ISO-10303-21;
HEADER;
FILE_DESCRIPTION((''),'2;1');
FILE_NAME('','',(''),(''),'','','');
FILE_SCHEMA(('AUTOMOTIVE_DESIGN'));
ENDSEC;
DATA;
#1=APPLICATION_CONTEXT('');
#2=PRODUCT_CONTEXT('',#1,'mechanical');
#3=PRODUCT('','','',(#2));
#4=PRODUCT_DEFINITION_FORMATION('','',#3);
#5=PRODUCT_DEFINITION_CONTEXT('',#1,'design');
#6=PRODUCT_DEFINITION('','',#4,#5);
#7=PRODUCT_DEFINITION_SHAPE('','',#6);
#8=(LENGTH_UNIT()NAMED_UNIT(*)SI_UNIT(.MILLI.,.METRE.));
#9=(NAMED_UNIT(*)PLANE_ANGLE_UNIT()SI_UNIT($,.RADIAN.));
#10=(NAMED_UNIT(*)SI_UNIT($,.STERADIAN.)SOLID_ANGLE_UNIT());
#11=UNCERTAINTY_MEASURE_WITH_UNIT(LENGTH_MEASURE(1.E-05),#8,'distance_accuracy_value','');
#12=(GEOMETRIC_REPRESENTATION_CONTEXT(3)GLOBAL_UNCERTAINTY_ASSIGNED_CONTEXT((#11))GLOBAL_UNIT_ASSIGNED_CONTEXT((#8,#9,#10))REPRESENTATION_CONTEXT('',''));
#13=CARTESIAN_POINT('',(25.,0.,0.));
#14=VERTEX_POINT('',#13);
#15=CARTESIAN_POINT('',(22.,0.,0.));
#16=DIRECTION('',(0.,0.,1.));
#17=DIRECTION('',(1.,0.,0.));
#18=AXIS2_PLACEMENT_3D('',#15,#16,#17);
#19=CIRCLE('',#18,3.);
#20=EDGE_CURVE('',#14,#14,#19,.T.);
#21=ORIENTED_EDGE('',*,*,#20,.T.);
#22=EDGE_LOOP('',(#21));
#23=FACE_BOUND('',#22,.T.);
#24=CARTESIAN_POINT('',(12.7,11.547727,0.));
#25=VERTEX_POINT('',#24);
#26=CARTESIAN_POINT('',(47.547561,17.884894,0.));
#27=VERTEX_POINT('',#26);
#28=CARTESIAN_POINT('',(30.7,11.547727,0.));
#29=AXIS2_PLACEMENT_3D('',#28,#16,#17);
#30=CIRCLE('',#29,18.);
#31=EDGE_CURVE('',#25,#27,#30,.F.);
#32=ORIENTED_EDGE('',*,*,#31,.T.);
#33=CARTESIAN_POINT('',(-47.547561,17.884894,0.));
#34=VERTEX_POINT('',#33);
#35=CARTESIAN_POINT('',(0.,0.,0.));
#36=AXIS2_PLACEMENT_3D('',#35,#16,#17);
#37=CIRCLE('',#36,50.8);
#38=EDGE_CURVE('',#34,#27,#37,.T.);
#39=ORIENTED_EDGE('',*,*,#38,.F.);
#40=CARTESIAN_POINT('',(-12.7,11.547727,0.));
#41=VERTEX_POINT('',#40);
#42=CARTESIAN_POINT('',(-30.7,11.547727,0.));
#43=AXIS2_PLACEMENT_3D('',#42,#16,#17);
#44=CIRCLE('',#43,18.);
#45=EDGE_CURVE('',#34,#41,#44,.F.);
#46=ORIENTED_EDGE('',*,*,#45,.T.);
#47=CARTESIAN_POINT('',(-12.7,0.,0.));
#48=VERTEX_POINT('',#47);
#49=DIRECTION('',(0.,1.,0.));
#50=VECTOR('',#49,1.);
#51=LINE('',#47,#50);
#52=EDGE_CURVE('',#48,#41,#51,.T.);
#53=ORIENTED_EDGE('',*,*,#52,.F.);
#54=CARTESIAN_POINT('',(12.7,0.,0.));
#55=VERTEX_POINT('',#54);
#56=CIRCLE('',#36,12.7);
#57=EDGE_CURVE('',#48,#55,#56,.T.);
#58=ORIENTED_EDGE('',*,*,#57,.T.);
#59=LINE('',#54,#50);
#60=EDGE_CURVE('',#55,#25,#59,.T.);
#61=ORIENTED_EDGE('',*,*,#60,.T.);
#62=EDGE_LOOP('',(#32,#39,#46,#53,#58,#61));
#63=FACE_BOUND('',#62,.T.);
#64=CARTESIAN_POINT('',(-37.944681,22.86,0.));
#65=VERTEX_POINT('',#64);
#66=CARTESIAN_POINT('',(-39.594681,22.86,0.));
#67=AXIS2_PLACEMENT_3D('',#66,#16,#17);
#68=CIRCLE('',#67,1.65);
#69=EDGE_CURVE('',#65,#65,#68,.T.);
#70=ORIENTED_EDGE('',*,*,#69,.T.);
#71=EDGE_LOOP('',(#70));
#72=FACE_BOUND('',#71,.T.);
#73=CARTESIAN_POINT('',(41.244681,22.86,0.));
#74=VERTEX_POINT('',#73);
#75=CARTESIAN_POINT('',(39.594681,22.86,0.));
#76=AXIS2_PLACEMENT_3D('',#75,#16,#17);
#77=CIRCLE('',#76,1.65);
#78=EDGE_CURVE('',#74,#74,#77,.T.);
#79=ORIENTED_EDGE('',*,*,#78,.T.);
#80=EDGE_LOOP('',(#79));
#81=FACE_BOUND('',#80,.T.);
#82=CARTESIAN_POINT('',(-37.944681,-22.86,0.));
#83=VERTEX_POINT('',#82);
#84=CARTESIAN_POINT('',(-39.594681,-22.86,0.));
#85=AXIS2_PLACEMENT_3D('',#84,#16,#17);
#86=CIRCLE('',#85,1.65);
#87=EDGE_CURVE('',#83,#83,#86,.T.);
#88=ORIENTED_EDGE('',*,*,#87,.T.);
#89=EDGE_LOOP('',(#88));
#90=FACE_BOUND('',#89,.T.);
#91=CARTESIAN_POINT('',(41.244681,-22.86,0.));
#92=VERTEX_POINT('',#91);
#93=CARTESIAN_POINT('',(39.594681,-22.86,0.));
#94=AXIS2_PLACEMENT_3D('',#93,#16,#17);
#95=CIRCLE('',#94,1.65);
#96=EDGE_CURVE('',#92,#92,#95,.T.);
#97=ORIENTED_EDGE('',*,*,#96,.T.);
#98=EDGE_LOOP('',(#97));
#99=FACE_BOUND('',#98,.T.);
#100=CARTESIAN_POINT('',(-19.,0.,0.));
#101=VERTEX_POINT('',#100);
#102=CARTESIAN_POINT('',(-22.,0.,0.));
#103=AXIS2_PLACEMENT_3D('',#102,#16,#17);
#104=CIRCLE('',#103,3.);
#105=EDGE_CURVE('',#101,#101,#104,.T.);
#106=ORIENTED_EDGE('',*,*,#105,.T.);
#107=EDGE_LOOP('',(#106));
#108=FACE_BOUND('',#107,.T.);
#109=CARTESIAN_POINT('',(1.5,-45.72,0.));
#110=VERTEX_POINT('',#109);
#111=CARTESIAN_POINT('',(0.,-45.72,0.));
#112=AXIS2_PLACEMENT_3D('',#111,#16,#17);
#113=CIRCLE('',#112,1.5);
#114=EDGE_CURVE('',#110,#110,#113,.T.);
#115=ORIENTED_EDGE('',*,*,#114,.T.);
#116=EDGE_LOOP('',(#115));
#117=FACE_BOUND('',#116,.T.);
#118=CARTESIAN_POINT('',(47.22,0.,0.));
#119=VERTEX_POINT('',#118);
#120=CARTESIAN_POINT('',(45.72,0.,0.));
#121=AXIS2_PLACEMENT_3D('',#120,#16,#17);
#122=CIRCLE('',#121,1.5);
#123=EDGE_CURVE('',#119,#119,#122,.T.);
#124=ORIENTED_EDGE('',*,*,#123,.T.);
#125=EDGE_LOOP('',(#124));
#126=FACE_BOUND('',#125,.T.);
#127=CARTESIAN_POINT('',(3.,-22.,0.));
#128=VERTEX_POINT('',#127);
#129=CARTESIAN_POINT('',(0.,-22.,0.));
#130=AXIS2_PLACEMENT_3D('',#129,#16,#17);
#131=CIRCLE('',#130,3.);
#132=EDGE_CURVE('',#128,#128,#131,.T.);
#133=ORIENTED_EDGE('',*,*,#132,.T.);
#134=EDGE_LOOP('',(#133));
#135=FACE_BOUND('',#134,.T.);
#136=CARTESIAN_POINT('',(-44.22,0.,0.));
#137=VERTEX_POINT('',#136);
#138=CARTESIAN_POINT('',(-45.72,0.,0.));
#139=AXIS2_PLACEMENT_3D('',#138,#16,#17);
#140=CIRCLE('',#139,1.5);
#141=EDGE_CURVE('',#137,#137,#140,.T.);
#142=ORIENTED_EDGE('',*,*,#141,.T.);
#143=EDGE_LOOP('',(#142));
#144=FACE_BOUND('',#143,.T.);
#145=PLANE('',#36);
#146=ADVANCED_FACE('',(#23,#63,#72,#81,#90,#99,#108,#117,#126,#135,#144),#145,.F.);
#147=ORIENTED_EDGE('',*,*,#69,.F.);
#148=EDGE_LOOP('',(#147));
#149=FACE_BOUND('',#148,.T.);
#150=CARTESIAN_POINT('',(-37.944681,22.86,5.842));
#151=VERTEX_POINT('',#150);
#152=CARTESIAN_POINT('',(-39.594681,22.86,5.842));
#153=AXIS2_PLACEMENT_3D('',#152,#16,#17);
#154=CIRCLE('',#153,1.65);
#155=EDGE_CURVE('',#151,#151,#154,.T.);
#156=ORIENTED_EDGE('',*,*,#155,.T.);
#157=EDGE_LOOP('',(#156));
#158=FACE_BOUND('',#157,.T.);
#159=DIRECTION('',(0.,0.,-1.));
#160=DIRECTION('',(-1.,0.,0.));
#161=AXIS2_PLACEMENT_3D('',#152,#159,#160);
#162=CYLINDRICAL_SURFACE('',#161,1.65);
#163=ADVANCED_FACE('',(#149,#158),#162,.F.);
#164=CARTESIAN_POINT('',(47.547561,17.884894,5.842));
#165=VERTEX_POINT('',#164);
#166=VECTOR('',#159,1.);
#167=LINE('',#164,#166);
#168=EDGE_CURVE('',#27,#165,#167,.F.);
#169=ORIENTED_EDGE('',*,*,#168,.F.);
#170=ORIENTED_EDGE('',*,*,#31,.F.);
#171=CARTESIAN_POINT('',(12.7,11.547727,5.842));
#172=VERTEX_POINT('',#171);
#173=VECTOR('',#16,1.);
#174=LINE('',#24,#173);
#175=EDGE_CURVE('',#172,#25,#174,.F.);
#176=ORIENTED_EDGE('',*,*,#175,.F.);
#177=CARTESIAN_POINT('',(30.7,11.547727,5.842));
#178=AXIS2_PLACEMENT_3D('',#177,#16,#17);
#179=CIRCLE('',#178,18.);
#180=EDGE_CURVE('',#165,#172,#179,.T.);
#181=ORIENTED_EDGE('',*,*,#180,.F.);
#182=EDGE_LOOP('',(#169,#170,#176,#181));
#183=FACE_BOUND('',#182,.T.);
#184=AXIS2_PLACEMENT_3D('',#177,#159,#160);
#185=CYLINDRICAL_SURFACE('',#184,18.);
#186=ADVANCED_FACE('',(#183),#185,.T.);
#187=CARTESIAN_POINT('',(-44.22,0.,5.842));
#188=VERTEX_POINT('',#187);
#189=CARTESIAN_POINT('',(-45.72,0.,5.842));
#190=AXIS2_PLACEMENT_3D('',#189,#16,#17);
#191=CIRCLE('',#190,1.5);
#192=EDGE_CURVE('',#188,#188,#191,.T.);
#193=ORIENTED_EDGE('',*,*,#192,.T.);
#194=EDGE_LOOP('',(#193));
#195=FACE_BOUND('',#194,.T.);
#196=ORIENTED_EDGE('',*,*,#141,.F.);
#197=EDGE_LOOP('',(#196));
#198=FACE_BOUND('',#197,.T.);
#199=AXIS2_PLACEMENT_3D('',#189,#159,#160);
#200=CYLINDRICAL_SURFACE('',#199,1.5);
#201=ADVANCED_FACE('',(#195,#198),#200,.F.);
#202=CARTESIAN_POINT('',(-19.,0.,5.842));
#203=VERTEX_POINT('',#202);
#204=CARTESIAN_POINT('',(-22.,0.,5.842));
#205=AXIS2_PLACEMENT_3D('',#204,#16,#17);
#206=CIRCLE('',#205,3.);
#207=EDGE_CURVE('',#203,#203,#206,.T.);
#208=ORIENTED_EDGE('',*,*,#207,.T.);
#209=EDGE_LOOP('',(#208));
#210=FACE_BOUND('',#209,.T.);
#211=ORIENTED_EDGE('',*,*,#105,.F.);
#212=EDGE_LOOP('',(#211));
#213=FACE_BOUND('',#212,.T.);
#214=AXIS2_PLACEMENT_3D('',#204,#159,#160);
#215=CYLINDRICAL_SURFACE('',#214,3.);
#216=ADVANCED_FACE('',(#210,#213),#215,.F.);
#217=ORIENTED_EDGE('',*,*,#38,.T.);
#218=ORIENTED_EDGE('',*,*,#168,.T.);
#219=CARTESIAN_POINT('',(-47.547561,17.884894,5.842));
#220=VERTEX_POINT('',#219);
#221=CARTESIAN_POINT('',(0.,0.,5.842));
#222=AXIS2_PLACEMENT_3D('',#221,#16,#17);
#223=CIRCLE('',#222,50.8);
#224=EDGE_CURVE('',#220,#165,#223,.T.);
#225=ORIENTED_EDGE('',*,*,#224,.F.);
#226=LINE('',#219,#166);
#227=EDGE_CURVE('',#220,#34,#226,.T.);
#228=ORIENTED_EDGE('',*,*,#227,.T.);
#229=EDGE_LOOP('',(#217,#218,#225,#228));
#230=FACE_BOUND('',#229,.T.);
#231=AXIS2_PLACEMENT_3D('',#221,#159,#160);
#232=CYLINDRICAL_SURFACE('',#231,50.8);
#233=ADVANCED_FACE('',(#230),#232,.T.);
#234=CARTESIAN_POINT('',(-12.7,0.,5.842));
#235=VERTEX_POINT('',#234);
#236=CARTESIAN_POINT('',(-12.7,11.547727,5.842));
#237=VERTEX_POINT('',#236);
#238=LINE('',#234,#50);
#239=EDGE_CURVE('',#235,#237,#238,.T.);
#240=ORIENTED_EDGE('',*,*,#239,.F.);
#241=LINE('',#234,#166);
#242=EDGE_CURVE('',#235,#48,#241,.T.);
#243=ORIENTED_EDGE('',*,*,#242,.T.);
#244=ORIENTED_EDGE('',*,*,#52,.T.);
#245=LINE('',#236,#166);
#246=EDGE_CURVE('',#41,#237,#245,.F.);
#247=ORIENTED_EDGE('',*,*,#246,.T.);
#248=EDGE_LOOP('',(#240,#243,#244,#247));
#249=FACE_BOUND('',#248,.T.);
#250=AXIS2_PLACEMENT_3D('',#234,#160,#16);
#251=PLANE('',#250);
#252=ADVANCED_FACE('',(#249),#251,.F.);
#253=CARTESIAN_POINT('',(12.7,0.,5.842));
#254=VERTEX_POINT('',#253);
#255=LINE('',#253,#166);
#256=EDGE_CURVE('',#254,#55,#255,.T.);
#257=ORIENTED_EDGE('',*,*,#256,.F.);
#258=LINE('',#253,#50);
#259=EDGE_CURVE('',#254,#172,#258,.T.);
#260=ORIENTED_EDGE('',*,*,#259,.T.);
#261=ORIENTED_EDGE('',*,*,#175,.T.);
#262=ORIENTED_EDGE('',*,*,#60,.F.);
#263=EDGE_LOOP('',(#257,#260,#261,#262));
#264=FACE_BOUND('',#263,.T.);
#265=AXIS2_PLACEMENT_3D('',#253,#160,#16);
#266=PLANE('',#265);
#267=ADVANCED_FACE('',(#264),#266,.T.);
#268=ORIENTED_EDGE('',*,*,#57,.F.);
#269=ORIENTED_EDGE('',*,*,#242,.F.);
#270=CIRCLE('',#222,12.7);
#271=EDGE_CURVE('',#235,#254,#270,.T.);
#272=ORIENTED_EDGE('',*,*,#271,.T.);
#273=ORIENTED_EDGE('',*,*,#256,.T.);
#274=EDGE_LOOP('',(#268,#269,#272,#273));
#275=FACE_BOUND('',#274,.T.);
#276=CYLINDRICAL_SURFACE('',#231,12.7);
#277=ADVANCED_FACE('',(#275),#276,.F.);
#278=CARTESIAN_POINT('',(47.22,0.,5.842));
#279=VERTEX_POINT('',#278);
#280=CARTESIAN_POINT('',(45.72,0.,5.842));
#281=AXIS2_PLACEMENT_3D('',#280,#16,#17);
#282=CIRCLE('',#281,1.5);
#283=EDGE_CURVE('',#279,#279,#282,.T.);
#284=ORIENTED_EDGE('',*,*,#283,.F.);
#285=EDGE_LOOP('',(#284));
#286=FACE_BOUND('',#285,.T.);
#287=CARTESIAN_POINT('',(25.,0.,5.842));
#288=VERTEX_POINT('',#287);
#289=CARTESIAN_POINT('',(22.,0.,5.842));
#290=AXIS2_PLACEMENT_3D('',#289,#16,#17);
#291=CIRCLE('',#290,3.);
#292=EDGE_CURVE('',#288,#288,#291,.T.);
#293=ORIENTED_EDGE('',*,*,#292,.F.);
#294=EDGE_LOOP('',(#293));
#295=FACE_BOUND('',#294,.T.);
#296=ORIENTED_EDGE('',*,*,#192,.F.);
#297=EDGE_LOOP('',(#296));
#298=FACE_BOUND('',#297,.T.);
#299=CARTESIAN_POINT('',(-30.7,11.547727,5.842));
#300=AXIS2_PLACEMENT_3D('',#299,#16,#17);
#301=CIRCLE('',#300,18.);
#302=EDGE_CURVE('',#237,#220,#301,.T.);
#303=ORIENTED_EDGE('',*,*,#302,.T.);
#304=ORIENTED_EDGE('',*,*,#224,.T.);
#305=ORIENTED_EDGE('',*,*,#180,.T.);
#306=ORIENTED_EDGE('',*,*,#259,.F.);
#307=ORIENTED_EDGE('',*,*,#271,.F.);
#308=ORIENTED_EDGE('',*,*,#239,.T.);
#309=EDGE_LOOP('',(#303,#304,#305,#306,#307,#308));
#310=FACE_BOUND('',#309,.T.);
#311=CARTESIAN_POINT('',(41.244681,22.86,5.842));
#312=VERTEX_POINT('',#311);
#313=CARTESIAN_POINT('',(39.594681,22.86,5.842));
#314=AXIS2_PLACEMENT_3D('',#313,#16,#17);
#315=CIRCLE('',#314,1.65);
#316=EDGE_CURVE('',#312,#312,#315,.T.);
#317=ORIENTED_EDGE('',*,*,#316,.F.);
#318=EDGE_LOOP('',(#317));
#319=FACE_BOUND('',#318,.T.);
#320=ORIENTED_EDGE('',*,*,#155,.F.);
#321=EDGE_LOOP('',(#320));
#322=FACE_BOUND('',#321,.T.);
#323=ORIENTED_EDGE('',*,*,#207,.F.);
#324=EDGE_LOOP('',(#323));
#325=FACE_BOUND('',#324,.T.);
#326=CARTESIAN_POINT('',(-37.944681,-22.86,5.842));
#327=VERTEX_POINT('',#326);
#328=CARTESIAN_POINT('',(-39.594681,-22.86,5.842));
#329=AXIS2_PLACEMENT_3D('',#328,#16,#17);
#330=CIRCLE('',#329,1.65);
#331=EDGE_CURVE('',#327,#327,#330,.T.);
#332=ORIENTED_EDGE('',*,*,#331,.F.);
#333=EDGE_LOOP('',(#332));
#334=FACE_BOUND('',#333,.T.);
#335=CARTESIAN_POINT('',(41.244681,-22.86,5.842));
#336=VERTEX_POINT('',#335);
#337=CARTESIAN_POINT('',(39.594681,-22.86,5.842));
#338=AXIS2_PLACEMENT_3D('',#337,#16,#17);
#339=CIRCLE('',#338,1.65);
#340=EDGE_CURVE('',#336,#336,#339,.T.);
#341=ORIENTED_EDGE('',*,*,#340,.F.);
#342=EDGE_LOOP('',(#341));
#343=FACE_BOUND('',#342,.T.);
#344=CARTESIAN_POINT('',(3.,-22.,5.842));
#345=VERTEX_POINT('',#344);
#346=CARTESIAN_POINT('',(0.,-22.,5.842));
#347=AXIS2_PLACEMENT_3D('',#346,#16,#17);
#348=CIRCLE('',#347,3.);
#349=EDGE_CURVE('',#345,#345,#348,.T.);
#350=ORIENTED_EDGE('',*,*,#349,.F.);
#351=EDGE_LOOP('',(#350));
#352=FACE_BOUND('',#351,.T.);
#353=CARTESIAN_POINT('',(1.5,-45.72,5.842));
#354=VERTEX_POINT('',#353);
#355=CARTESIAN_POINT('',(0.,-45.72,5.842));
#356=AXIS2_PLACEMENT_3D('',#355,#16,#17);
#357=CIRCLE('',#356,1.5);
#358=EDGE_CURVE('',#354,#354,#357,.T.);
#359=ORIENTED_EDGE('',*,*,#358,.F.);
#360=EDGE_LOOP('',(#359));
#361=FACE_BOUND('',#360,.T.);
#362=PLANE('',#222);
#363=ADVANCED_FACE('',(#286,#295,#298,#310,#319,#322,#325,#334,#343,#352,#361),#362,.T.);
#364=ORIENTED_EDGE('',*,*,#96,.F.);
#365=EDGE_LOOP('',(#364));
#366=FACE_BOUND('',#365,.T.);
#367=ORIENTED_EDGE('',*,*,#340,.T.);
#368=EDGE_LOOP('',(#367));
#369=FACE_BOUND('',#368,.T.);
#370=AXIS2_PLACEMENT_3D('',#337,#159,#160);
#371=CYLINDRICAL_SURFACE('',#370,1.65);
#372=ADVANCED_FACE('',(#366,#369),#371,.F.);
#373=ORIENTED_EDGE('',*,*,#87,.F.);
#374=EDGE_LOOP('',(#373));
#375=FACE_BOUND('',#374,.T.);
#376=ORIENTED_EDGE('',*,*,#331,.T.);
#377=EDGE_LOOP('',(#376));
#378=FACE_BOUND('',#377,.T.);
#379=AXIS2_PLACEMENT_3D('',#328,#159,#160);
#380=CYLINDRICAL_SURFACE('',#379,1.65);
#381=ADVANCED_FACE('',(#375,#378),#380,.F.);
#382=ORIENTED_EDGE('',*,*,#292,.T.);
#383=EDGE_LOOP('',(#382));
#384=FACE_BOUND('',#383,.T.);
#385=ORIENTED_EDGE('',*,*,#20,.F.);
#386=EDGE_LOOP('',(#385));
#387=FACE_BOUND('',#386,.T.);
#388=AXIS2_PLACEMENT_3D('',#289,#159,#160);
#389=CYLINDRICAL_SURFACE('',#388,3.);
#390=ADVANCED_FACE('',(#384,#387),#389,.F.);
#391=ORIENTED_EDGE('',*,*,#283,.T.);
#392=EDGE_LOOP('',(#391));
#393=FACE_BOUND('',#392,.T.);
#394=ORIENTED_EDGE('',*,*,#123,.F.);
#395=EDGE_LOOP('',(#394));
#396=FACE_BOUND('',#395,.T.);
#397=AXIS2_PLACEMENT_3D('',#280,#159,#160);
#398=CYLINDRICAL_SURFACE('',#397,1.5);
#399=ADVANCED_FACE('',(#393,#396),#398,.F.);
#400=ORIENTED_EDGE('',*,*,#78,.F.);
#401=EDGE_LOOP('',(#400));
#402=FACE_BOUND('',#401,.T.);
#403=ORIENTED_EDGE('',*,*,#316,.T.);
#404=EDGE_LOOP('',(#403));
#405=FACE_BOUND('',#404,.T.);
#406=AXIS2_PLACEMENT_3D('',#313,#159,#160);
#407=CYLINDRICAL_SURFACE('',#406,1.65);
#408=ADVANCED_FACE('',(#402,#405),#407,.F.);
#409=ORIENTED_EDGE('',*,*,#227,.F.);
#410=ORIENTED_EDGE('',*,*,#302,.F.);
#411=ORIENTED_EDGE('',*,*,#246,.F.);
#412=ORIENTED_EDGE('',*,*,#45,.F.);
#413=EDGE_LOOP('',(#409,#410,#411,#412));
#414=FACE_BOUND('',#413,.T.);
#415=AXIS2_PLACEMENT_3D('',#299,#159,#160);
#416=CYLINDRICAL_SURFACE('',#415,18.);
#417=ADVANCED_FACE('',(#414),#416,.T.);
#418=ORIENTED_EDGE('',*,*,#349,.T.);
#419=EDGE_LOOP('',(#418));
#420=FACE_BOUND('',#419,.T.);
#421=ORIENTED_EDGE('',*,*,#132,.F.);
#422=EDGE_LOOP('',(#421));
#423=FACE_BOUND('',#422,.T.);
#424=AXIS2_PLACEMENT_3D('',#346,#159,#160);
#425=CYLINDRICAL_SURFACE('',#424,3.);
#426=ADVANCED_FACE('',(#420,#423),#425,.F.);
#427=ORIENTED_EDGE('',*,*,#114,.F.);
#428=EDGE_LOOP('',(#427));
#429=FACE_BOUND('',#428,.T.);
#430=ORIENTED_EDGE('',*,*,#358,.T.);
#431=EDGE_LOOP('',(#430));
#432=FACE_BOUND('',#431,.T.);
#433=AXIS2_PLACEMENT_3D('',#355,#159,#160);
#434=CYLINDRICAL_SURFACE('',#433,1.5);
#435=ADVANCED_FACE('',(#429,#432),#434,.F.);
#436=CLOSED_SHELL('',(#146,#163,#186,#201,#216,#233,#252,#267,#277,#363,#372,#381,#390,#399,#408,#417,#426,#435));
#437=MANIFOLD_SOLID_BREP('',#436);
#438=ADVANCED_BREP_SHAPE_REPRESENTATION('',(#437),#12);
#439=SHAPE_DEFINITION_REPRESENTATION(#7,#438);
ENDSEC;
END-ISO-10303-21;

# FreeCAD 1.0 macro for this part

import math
import FreeCAD as App
import Part
import Sketcher
from FreeCAD import Vector


def edges_at(feature, points):
    """Names of the edges that pass closest to the given points."""
    edges = feature.Shape.Edges
    near = lambda p: min(range(len(edges)), key=lambda i: edges[i].distToShape(Part.Vertex(*p))[0])
    return sorted({f"Edge{near(p) + 1}" for p in points})

doc = App.newDocument("Part")
body = doc.addObject("PartDesign::Body", "Body")

sketch1 = body.newObject("Sketcher::SketchObject", "Sketch")
sketch1.AttachmentSupport = (doc.getObject("XY_Plane"), [""])
sketch1.MapMode = "FlatFace"
sketch1.addGeometry([
    Part.LineSegment(Vector(-12.7, 0, 0), Vector(-12.7, 49.2, 0)),
    Part.ArcOfCircle(Part.Circle(Vector(0, 0, 0), Vector(0, 0, 1), 50.8), math.radians(104), math.radians(436)),
    Part.LineSegment(Vector(12.7, 49.2, 0), Vector(12.7, 0, 0)),
    Part.ArcOfCircle(Part.Circle(Vector(0, 0, 0), Vector(0, 0, 1), 12.7), math.radians(180), math.radians(360)),
    Part.Circle(Vector(0, -45.7, 0), Vector(0, 0, 1), 1.5),
    Part.Circle(Vector(-39.6, -22.9, 0), Vector(0, 0, 1), 1.6),
    Part.Circle(Vector(0, -22, 0), Vector(0, 0, 1), 3),
    Part.Circle(Vector(39.6, -22.9, 0), Vector(0, 0, 1), 1.6),
    Part.Circle(Vector(-45.7, 0, 0), Vector(0, 0, 1), 1.5),
    Part.Circle(Vector(-22, 0, 0), Vector(0, 0, 1), 3),
    Part.Circle(Vector(-39.6, 22.9, 0), Vector(0, 0, 1), 1.6),
    Part.Circle(Vector(22, 0, 0), Vector(0, 0, 1), 3),
    Part.Circle(Vector(45.7, 0, 0), Vector(0, 0, 1), 1.5),
    Part.Circle(Vector(39.6, 22.9, 0), Vector(0, 0, 1), 1.6),
], False)
sketch1.addConstraint([
    Sketcher.Constraint("Coincident", 0, 2, 1, 1),
    Sketcher.Constraint("Coincident", 1, 2, 2, 1),
    Sketcher.Constraint("Tangent", 2, 2, 3, 2),
    Sketcher.Constraint("Tangent", 3, 1, 0, 1),
    Sketcher.Constraint("Vertical", 0),
    Sketcher.Constraint("Vertical", 2),
    Sketcher.Constraint("Coincident", 1, 3, -1, 1),
    Sketcher.Constraint("Coincident", 3, 3, -1, 1),
    Sketcher.Constraint("Equal", 5, 7),
    Sketcher.Constraint("Equal", 4, 8),
    Sketcher.Constraint("Equal", 6, 9),
    Sketcher.Constraint("Equal", 7, 10),
    Sketcher.Constraint("Equal", 9, 11),
    Sketcher.Constraint("Equal", 8, 12),
    Sketcher.Constraint("Equal", 10, 13),
    Sketcher.Constraint("Symmetric", 7, 3, 10, 3, -1, 1),
    Sketcher.Constraint("Symmetric", 9, 3, 11, 3, -1, 1),
    Sketcher.Constraint("Symmetric", 8, 3, 12, 3, -1, 1),
    Sketcher.Constraint("Symmetric", 5, 3, 13, 3, -1, 1),
    Sketcher.Constraint("Symmetric", 5, 3, 7, 3, -2),
    Sketcher.Constraint("PointOnObject", 4, 3, -2),
    Sketcher.Constraint("PointOnObject", 6, 3, -2),
    Sketcher.Constraint("PointOnObject", 8, 3, -1),
    Sketcher.Constraint("PointOnObject", 9, 3, -1),
    Sketcher.Constraint("Diameter", 4, 3.0),
    Sketcher.Constraint("Diameter", 6, 6.0),
    Sketcher.Constraint("Diameter", 5, 3.3),
    Sketcher.Constraint("Radius", 1, 50.8),
    Sketcher.Constraint("Radius", 3, 12.7),
    Sketcher.Constraint("DistanceY", 6, 3, -1, 1, 22.0),
    Sketcher.Constraint("DistanceX", 9, 3, -1, 1, 22.0),
    Sketcher.Constraint("DistanceY", 4, 3, -1, 1, 45.72),
    Sketcher.Constraint("DistanceY", 5, 3, -1, 1, 22.86),
    Sketcher.Constraint("DistanceX", 8, 3, -1, 1, 45.72),
    Sketcher.Constraint("DistanceX", 5, 3, -1, 1, 39.594681),
])
pad1 = body.newObject("PartDesign::Pad", "Pad")
pad1.Profile = sketch1
pad1.Length = 5.842
doc.recompute()

fillet = body.newObject("PartDesign::Fillet", "Fillet")
fillet.Base = (pad1, edges_at(pad1, [(12.7, 49.187, 2.921), (-12.7, 49.187, 2.921)]))
fillet.Radius = 18

doc.recompute()
